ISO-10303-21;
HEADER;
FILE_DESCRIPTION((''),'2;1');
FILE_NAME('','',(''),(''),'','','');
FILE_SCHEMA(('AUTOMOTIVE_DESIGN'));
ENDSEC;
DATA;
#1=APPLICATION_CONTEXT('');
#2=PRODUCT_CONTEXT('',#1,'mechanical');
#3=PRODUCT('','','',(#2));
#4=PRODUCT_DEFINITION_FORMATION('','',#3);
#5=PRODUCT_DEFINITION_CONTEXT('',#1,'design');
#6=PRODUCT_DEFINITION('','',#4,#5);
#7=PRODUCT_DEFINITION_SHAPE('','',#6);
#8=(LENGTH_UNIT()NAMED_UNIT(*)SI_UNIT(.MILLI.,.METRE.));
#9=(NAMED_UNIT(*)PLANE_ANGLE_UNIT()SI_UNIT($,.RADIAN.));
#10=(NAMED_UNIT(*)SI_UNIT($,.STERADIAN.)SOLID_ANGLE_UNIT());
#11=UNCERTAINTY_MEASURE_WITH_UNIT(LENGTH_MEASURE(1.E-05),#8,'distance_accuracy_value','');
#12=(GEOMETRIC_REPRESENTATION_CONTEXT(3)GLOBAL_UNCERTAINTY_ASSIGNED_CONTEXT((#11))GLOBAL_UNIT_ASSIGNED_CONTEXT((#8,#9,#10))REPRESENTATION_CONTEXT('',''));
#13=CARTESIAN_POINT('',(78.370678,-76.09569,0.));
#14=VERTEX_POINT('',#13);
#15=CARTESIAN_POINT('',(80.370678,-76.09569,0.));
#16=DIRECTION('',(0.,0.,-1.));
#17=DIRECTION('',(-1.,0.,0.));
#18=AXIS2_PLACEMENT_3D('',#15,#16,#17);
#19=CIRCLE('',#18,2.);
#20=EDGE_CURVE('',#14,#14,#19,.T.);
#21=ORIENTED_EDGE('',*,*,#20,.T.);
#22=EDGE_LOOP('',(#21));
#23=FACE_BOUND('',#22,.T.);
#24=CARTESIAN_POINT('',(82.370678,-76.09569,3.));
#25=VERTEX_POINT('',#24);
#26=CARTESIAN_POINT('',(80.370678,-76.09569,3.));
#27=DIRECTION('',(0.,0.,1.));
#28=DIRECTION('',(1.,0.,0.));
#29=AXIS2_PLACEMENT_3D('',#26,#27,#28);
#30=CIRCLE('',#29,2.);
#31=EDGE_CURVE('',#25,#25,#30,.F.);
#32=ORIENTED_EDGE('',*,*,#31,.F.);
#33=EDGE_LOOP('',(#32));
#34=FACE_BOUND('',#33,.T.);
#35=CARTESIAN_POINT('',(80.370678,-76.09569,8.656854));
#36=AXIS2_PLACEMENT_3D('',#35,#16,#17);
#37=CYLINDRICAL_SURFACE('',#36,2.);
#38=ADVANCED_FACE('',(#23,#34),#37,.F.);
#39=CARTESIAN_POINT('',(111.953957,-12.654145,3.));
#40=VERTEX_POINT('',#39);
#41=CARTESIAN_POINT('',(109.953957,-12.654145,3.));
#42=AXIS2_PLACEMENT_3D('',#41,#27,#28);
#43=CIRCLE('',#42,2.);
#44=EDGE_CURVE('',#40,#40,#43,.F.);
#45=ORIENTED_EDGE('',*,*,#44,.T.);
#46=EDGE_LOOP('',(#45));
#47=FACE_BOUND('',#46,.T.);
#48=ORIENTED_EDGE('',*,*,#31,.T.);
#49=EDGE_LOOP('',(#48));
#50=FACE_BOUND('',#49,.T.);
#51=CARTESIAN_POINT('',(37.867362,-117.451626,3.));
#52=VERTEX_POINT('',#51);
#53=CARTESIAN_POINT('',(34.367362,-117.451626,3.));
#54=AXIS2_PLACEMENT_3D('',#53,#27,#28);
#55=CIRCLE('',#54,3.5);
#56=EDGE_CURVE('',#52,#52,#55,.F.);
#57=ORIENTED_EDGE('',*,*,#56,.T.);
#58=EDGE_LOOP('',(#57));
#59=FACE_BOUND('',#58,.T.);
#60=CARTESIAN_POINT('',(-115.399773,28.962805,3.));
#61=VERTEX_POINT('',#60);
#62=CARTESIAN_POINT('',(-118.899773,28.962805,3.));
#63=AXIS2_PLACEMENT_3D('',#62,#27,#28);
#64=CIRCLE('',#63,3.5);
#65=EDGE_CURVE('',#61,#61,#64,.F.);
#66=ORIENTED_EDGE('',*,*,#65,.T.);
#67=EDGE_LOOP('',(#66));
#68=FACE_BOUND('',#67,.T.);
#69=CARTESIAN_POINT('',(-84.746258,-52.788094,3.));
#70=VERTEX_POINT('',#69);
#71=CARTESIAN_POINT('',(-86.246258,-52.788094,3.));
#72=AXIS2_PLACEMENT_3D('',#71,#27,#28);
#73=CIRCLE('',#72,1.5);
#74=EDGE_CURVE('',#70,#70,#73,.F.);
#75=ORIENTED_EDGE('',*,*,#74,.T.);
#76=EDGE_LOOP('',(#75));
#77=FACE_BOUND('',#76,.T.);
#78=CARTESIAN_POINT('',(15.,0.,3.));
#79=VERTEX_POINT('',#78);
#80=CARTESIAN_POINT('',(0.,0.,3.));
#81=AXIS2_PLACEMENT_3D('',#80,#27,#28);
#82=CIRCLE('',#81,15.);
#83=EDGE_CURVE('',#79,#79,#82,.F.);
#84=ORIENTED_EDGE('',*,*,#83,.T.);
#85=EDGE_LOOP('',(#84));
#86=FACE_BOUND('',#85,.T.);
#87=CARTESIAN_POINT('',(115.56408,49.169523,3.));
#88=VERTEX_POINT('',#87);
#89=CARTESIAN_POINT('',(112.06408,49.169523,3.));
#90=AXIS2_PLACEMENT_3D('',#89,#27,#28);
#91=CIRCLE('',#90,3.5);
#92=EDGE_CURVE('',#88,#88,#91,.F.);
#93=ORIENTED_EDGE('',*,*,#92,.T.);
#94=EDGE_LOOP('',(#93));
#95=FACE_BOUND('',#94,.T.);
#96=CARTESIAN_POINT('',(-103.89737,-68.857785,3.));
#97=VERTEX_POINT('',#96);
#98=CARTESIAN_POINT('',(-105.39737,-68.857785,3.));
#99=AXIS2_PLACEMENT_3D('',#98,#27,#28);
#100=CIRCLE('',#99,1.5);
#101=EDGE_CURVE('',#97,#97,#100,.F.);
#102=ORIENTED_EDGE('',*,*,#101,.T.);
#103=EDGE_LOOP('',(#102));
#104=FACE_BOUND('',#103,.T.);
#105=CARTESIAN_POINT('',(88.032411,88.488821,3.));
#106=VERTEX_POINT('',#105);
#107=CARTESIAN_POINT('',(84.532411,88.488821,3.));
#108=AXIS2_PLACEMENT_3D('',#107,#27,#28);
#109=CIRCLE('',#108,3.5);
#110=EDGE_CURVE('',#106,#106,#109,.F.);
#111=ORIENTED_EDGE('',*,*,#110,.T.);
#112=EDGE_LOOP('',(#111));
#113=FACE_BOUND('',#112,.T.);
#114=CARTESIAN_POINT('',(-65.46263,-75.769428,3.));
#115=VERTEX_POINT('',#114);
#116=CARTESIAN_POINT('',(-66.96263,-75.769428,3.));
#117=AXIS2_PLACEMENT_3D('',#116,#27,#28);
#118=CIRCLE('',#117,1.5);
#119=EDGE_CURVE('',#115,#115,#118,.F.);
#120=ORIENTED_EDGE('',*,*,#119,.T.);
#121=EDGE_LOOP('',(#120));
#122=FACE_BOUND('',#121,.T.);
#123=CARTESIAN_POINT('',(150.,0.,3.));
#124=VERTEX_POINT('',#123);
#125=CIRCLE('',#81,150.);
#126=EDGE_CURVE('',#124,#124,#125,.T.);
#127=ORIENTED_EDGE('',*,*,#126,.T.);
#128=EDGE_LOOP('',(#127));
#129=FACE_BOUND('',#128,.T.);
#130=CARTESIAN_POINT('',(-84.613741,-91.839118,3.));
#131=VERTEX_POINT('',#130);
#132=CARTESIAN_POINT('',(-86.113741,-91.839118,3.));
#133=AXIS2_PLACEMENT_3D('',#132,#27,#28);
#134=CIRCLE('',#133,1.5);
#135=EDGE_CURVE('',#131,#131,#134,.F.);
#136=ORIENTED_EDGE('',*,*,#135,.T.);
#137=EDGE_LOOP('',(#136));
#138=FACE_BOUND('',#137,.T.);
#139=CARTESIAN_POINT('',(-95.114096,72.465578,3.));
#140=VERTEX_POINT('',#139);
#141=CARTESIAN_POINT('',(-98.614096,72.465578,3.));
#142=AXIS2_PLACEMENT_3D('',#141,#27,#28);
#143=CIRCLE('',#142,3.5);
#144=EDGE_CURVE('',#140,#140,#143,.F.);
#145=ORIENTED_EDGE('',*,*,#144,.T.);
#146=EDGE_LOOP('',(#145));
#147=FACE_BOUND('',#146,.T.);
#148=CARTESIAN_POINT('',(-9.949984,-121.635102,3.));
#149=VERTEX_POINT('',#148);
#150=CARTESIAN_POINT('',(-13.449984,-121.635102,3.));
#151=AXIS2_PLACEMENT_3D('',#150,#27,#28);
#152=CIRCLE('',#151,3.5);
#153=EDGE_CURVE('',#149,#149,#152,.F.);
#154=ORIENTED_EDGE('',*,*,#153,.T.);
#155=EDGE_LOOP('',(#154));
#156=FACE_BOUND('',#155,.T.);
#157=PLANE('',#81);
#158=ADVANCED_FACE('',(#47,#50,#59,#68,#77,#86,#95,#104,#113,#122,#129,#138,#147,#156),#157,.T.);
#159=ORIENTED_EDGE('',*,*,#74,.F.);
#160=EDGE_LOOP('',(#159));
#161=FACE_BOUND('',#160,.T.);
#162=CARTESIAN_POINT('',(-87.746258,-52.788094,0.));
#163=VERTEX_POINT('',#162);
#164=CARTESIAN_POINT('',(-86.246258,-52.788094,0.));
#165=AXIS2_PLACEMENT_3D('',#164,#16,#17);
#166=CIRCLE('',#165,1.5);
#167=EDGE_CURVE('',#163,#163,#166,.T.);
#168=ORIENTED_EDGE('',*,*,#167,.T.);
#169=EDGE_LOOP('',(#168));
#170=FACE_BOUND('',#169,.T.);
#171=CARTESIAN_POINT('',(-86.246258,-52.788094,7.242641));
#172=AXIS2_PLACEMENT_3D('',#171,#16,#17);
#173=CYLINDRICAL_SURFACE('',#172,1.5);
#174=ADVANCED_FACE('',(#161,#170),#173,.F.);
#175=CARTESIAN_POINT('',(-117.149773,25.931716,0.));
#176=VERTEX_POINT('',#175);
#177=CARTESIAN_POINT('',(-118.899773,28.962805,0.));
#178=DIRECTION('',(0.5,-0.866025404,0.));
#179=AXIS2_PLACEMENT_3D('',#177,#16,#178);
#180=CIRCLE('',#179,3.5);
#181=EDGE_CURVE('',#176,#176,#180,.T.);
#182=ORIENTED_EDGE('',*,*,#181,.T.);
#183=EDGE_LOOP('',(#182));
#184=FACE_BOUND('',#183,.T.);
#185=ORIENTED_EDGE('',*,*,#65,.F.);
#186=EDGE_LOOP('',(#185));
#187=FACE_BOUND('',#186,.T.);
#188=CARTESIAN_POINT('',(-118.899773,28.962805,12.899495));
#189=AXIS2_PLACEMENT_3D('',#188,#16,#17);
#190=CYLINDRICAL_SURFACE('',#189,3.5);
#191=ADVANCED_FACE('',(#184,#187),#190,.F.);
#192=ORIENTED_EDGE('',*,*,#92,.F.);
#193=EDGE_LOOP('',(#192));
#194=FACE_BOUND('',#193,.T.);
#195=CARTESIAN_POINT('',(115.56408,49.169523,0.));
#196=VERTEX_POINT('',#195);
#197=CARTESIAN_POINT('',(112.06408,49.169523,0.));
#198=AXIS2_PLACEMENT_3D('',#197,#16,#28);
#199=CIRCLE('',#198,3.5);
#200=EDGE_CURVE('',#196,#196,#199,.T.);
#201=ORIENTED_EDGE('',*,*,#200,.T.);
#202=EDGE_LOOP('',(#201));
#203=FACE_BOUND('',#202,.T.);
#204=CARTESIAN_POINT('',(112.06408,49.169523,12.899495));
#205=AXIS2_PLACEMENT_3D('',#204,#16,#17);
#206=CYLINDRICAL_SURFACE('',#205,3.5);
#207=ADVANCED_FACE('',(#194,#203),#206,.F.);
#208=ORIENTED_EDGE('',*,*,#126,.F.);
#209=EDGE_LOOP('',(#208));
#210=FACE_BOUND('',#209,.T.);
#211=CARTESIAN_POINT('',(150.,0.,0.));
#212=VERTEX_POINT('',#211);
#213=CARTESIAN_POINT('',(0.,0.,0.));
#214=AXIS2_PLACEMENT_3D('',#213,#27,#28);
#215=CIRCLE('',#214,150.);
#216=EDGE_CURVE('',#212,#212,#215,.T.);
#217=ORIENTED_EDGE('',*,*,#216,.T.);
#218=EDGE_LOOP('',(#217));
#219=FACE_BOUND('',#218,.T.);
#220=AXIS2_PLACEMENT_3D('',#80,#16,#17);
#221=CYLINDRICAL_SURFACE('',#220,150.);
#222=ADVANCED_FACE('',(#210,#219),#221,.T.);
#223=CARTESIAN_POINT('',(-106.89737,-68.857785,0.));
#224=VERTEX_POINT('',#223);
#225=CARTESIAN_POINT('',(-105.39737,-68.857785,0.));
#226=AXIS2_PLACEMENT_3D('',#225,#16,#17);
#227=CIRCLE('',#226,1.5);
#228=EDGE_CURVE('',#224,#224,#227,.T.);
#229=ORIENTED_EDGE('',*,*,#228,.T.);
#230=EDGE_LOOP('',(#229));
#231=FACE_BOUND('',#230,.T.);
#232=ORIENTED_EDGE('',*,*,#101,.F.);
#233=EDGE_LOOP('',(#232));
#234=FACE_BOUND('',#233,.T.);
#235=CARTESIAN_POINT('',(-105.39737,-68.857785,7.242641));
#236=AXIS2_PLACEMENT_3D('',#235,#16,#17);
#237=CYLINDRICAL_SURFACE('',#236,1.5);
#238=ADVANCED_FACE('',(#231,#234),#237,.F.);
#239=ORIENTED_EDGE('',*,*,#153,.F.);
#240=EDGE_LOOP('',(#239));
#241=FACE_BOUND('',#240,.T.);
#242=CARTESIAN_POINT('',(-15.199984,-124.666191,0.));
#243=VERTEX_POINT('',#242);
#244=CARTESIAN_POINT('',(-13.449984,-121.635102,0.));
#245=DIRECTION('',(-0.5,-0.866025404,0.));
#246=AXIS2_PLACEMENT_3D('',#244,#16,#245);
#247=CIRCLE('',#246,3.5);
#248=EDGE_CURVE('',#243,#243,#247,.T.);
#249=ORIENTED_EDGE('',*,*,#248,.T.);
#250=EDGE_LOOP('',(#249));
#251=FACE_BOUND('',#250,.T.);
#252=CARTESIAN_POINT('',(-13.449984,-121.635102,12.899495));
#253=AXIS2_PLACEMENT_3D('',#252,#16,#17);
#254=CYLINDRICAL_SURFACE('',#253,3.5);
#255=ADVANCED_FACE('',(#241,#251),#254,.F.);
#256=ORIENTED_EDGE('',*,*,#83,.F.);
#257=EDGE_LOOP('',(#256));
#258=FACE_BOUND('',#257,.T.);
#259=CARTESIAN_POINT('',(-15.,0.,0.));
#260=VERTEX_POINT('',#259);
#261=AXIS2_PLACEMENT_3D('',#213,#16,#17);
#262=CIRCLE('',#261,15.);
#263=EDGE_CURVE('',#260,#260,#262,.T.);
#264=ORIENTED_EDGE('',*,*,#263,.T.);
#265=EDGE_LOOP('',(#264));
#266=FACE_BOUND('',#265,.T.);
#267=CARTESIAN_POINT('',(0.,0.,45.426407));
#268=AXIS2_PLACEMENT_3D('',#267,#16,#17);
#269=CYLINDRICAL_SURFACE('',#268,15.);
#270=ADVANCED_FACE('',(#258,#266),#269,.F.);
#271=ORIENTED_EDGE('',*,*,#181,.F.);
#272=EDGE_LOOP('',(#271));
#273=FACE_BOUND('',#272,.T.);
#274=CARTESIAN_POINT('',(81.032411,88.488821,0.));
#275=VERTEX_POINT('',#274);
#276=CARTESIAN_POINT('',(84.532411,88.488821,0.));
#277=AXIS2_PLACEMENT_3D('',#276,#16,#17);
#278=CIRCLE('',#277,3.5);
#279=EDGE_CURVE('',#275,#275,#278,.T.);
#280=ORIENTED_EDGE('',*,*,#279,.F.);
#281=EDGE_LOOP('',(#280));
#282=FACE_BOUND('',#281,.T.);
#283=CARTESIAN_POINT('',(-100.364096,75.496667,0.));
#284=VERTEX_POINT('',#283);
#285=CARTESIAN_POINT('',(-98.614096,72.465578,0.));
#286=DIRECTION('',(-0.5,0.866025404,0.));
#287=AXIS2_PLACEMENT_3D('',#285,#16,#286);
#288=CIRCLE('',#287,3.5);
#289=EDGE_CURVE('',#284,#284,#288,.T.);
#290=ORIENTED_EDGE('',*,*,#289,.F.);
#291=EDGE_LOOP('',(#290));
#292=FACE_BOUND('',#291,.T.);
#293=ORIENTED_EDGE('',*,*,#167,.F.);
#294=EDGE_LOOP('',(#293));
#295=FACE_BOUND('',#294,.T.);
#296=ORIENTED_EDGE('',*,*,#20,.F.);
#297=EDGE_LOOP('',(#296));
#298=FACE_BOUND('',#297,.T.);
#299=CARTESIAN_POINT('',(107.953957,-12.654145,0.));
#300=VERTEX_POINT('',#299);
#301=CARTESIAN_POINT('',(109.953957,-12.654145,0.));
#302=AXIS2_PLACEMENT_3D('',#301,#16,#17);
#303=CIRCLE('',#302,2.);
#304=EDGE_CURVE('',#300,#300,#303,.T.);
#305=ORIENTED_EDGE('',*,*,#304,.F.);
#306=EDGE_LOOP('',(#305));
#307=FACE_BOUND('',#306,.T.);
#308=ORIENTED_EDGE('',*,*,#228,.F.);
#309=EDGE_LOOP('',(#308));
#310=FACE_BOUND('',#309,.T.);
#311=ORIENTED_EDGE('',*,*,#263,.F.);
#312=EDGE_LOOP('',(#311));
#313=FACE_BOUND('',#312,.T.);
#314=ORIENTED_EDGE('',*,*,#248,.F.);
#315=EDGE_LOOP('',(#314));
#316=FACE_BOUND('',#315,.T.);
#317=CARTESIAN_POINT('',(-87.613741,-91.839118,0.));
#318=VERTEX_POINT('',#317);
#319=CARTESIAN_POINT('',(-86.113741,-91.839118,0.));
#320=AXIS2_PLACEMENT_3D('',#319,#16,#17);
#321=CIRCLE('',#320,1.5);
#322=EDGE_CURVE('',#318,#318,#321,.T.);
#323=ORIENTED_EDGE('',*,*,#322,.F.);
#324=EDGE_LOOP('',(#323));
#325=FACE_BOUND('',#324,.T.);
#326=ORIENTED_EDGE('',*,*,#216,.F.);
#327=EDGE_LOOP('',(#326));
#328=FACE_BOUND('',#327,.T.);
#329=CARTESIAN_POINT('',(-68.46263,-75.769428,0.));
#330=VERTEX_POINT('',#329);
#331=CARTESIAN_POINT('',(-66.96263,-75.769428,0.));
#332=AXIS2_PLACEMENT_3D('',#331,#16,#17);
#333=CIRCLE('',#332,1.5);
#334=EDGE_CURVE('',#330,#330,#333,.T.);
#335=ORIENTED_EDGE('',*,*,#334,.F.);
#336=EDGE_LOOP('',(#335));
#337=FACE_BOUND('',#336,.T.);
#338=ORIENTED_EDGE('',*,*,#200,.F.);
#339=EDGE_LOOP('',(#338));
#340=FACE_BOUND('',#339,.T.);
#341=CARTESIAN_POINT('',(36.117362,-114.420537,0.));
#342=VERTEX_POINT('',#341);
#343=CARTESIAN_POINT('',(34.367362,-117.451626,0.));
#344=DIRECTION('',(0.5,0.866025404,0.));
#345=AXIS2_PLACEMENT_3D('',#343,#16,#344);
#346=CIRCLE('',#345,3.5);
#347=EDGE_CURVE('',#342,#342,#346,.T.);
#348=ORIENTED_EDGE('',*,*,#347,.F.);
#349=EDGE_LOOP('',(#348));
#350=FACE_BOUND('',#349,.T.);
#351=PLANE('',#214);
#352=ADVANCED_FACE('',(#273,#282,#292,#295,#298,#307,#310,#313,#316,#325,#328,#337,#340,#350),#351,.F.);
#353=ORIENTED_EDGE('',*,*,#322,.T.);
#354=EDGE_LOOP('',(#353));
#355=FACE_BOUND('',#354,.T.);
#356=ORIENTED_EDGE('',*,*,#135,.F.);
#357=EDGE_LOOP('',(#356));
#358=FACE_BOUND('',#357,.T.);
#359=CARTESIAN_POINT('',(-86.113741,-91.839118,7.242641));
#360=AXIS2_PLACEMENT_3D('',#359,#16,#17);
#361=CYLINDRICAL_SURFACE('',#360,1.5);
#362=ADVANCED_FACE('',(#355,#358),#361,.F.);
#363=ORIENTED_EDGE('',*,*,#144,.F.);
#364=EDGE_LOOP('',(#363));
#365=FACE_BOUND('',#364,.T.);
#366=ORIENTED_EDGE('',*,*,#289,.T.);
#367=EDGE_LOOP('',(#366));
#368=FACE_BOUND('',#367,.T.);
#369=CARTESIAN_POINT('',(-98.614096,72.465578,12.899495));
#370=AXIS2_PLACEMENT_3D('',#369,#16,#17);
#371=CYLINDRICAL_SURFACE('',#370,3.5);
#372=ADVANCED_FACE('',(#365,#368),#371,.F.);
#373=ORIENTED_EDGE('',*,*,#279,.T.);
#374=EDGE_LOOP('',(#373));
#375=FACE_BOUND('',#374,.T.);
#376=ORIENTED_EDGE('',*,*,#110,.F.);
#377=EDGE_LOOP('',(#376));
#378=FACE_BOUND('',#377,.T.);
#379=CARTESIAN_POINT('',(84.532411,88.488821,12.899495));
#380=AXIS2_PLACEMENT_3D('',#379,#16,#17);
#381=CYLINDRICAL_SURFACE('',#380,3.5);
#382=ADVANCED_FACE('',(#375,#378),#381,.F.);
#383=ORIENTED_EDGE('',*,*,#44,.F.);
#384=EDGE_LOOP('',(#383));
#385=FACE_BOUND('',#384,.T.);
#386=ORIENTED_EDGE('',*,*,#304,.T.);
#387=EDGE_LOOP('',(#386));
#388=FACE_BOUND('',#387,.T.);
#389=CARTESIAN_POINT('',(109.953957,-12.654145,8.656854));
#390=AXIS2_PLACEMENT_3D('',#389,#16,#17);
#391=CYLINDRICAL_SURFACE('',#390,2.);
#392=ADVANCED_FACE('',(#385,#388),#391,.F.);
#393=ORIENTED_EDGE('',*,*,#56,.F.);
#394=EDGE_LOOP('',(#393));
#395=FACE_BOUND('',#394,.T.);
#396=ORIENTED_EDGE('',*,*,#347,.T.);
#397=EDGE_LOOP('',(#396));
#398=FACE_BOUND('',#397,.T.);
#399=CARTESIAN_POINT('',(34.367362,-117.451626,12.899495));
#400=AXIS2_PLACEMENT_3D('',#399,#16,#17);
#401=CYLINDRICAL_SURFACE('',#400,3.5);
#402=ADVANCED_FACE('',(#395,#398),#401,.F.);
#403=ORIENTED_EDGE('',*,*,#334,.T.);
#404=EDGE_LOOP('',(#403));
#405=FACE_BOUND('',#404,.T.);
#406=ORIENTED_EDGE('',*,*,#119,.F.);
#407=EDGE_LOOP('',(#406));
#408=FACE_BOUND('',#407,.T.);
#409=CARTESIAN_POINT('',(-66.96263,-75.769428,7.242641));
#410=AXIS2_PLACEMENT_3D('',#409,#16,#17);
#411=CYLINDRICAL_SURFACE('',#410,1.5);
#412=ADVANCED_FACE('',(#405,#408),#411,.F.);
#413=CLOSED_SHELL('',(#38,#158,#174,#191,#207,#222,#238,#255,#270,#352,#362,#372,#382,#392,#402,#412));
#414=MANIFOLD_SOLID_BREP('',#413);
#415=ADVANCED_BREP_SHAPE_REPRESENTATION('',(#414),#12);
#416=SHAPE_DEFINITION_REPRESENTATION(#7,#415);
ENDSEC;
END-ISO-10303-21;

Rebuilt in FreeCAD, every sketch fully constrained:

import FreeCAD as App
import Part
import Sketcher

V = App.Vector
Q = App.Units.Quantity

doc = App.newDocument("Part")
params = doc.addObject("Spreadsheet::Sheet", "Params")
for row, (alias, value) in enumerate([
    ("sketch1_diameter", "300 mm"),
    ("pad1_length", "3 mm"),
    ("sketch2_diameter", "7 mm"),
    ("pocket1_length", "3 mm"),
    ("sketch3_diameter", "4 mm"),
    ("pocket2_length", "3 mm"),
    ("sketch4_diameter", "30 mm"),
    ("pocket3_length", "3 mm"),
    ("sketch5_diameter", "3 mm"),
    ("pocket4_length", "3 mm"),
], start=1):
    params.set(f"A{row}", alias)
    params.set(f"B{row}", "=" + value)
    params.setAlias(f"B{row}", alias)

body = doc.addObject("PartDesign::Body", "Body")

# Sketch on XY plane
sketch1 = body.newObject("Sketcher::SketchObject", "Sketch")
sketch1.AttachmentSupport = (doc.getObject("XY_Plane"), [""])
sketch1.MapMode = "FlatFace"
sketch1.addGeometry(Part.Circle(V(0, 0, 0), V(0, 0, 1), 150), False)
sketch1.addConstraint([
    Sketcher.Constraint("Coincident", 0, 3, -1, 1),
    Sketcher.Constraint("Diameter", 0, Q("300 mm")),
])
sketch1.setExpression("Constraints[1]", "Params.sketch1_diameter")
pad1 = body.newObject("PartDesign::Pad", "Pad")
pad1.Profile = sketch1
pad1.setExpression("Length", "Params.pad1_length")

# Sketch on XY plane
sketch2 = body.newObject("Sketcher::SketchObject", "Sketch001")
sketch2.AttachmentSupport = (doc.getObject("XY_Plane"), [""])
sketch2.MapMode = "FlatFace"
sketch2.addGeometry([
    Part.Circle(V(84.532411, 88.488821, 0), V(0, 0, 1), 3.5),
    Part.Circle(V(112.06408, 49.169523, 0), V(0, 0, 1), 3.5),
], False)
sketch2.addConstraint([
    Sketcher.Constraint("Equal", 0, 1),
    Sketcher.Constraint("Diameter", 0, Q("7 mm")),
    Sketcher.Constraint("DistanceY", 1, 3, 0, 3, Q("39.319298 mm")),
    Sketcher.Constraint("DistanceX", -1, 1, 0, 3, Q("84.532411 mm")),
    Sketcher.Constraint("DistanceY", -1, 1, 0, 3, Q("88.488821 mm")),
    Sketcher.Constraint("DistanceX", -1, 1, 1, 3, Q("112.06408 mm")),
])
sketch2.setExpression("Constraints[1]", "Params.sketch2_diameter")
pocket1 = body.newObject("PartDesign::Pocket", "Pocket")
pocket1.Profile = sketch2
pocket1.setExpression("Length", "Params.pocket1_length")
pocket1.Reversed = True
doc.recompute()

polarpattern = body.newObject("PartDesign::PolarPattern", "PolarPattern")
polarpattern.Originals = [pocket1]
polarpattern.Axis = (doc.getObject("Z_Axis"), [""])
polarpattern.Angle = 360
polarpattern.Occurrences = 3
body.Tip = polarpattern

# Sketch on XY plane
sketch3 = body.newObject("Sketcher::SketchObject", "Sketch002")
sketch3.AttachmentSupport = (doc.getObject("XY_Plane"), [""])
sketch3.MapMode = "FlatFace"
sketch3.addGeometry([
    Part.Circle(V(109.953957, -12.654145, 0), V(0, 0, 1), 2),
    Part.Circle(V(80.370678, -76.09569, 0), V(0, 0, 1), 2),
], False)
sketch3.addConstraint([
    Sketcher.Constraint("Equal", 0, 1),
    Sketcher.Constraint("Diameter", 0, Q("4 mm")),
    Sketcher.Constraint("DistanceX", -1, 1, 1, 3, Q("80.370678 mm")),
    Sketcher.Constraint("DistanceY", 1, 3, -1, 1, Q("76.09569 mm")),
    Sketcher.Constraint("DistanceX", 1, 3, 0, 3, Q("29.583278 mm")),
    Sketcher.Constraint("DistanceY", 0, 3, -1, 1, Q("12.654145 mm")),
])
sketch3.setExpression("Constraints[1]", "Params.sketch3_diameter")
pocket2 = body.newObject("PartDesign::Pocket", "Pocket001")
pocket2.Profile = sketch3
pocket2.setExpression("Length", "Params.pocket2_length")
pocket2.Reversed = True

# Sketch on XY plane
sketch4 = body.newObject("Sketcher::SketchObject", "Sketch003")
sketch4.AttachmentSupport = (doc.getObject("XY_Plane"), [""])
sketch4.MapMode = "FlatFace"
sketch4.addGeometry(Part.Circle(V(0, 0, 0), V(0, 0, 1), 15), False)
sketch4.addConstraint([
    Sketcher.Constraint("Coincident", 0, 3, -1, 1),
    Sketcher.Constraint("Diameter", 0, Q("30 mm")),
])
sketch4.setExpression("Constraints[1]", "Params.sketch4_diameter")
pocket3 = body.newObject("PartDesign::Pocket", "Pocket002")
pocket3.Profile = sketch4
pocket3.setExpression("Length", "Params.pocket3_length")
pocket3.Reversed = True

# Sketch on XY plane
sketch5 = body.newObject("Sketcher::SketchObject", "Sketch004")
sketch5.AttachmentSupport = (doc.getObject("XY_Plane"), [""])
sketch5.MapMode = "FlatFace"
sketch5.addGeometry([
    Part.Circle(V(-66.96263, -75.769428, 0), V(0, 0, 1), 1.5),
    Part.Circle(V(-86.113741, -91.839118, 0), V(0, 0, 1), 1.5),
    Part.Circle(V(-105.39737, -68.857785, 0), V(0, 0, 1), 1.5),
    Part.Circle(V(-86.246258, -52.788094, 0), V(0, 0, 1), 1.5),
], False)
sketch5.addConstraint([
    Sketcher.Constraint("Equal", 0, 1),
    Sketcher.Constraint("Equal", 1, 2),
    Sketcher.Constraint("Equal", 2, 3),
    Sketcher.Constraint("Diameter", 0, Q("3 mm")),
    Sketcher.Constraint("DistanceX", 0, 3, -1, 1, Q("66.96263 mm")),
    Sketcher.Constraint("DistanceX", 1, 3, -1, 1, Q("86.113741 mm")),
    Sketcher.Constraint("DistanceX", 2, 3, -1, 1, Q("105.39737 mm")),
    Sketcher.Constraint("DistanceX", 3, 3, -1, 1, Q("86.246258 mm")),
    Sketcher.Constraint("DistanceY", 1, 3, 0, 3, Q("16.06969 mm")),
    Sketcher.Constraint("DistanceY", 2, 3, 3, 3, Q("16.06969 mm")),
    Sketcher.Constraint("DistanceY", 0, 3, -1, 1, Q("75.769428 mm")),
    Sketcher.Constraint("DistanceY", 2, 3, -1, 1, Q("68.857785 mm")),
])
sketch5.setExpression("Constraints[3]", "Params.sketch5_diameter")
pocket4 = body.newObject("PartDesign::Pocket", "Pocket003")
pocket4.Profile = sketch5
pocket4.setExpression("Length", "Params.pocket4_length")
pocket4.Reversed = True

doc.recompute()
